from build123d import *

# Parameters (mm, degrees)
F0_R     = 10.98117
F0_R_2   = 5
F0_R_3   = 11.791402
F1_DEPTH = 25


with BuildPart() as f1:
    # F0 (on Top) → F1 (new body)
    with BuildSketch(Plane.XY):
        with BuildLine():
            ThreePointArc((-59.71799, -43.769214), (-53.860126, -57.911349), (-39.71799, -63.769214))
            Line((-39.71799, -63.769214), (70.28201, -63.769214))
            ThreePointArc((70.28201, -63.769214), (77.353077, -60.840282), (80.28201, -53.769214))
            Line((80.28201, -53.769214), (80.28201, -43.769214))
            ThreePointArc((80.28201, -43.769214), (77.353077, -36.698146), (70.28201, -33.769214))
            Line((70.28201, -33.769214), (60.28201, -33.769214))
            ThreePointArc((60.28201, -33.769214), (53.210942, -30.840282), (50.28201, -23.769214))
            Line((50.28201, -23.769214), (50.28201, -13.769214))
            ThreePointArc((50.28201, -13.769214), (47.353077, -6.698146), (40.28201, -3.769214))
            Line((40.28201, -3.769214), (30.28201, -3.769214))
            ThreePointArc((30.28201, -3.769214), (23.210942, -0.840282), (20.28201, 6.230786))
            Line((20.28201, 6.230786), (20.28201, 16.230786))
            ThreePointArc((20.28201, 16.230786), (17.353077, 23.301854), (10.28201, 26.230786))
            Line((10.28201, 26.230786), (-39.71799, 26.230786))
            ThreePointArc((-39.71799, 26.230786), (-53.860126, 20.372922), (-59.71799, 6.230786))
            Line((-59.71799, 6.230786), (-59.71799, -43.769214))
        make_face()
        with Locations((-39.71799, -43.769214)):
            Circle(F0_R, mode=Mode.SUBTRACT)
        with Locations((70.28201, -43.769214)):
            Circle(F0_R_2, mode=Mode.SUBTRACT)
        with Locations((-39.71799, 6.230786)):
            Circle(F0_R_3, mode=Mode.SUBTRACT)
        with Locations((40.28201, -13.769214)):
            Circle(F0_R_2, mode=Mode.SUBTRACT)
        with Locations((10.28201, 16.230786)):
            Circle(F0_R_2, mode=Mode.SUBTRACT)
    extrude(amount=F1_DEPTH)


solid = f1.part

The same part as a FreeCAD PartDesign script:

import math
import FreeCAD as App
import Part
import Sketcher

doc = App.newDocument("Part")
params = doc.addObject("Spreadsheet::Sheet", "Params")
for row, (alias, value) in enumerate([
    ("sketch1_diameter", "10 mm"),
    ("sketch1_radius", "20 mm"),
    ("sketch1_radius2", "10.000001 mm"),
    ("pad1_length", "25 mm"),
], start=1):
    params.set(f"A{row}", alias)
    params.set(f"B{row}", "=" + value)
    params.setAlias(f"B{row}", alias)

body = doc.addObject("PartDesign::Body", "Body")

# Sketch on XY plane
sketch1 = body.newObject("Sketcher::SketchObject", "Sketch")
sketch1.AttachmentSupport = (doc.getObject("XY_Plane"), [""])
sketch1.MapMode = "FlatFace"
sketch1.addGeometry([
    Part.ArcOfCircle(Part.Circle(App.Vector(-40, -44, 0), App.Vector(0, 0, 1), 20), math.radians(-180), math.radians(-90)),  # 0
    Part.LineSegment(App.Vector(-40, -64, 0), App.Vector(70, -64, 0)),  # 1
    Part.ArcOfCircle(Part.Circle(App.Vector(70, -54, 0), App.Vector(0, 0, 1), 10), math.radians(-90), math.radians(0)),  # 2
    Part.LineSegment(App.Vector(80, -54, 0), App.Vector(80, -44, 0)),  # 3
    Part.ArcOfCircle(Part.Circle(App.Vector(70, -44, 0), App.Vector(0, 0, 1), 10), math.radians(0), math.radians(90)),  # 4
    Part.LineSegment(App.Vector(70, -34, 0), App.Vector(60, -34, 0)),  # 5
    Part.ArcOfCircle(Part.Circle(App.Vector(60, -24, 0), App.Vector(0, 0, 1), 10), math.radians(180), math.radians(270)),  # 6
    Part.LineSegment(App.Vector(50, -24, 0), App.Vector(50, -14, 0)),  # 7
    Part.ArcOfCircle(Part.Circle(App.Vector(40, -14, 0), App.Vector(0, 0, 1), 10), math.radians(0), math.radians(90)),  # 8
    Part.LineSegment(App.Vector(40, -4, 0), App.Vector(30, -4, 0)),  # 9
    Part.ArcOfCircle(Part.Circle(App.Vector(30, 6, 0), App.Vector(0, 0, 1), 10), math.radians(180), math.radians(270)),  # 10
    Part.LineSegment(App.Vector(20, 6, 0), App.Vector(20, 16, 0)),  # 11
    Part.ArcOfCircle(Part.Circle(App.Vector(10, 16, 0), App.Vector(0, 0, 1), 10), math.radians(0), math.radians(90)),  # 12
    Part.LineSegment(App.Vector(10, 26, 0), App.Vector(-40, 26, 0)),  # 13
    Part.ArcOfCircle(Part.Circle(App.Vector(-40, 6, 0), App.Vector(0, 0, 1), 20), math.radians(90), math.radians(180)),  # 14
    Part.LineSegment(App.Vector(-60, 6, 0), App.Vector(-60, -44, 0)),  # 15
    Part.Circle(App.Vector(-40, -44, 0), App.Vector(0, 0, 1), 11),  # 16
    Part.Circle(App.Vector(70, -44, 0), App.Vector(0, 0, 1), 5),  # 17
    Part.Circle(App.Vector(-40, 6, 0), App.Vector(0, 0, 1), 12),  # 18
    Part.Circle(App.Vector(10, 16, 0), App.Vector(0, 0, 1), 5),  # 19
    Part.Circle(App.Vector(40, -14, 0), App.Vector(0, 0, 1), 5),  # 20
], False)
sketch1.addConstraint([
    Sketcher.Constraint("Tangent", 0, 2, 1, 1),
    Sketcher.Constraint("Tangent", 1, 2, 2, 1),
    Sketcher.Constraint("Tangent", 2, 2, 3, 1),
    Sketcher.Constraint("Tangent", 3, 2, 4, 1),
    Sketcher.Constraint("Tangent", 4, 2, 5, 1),
    Sketcher.Constraint("Tangent", 5, 2, 6, 2),
    Sketcher.Constraint("Tangent", 6, 1, 7, 1),
    Sketcher.Constraint("Tangent", 7, 2, 8, 1),
    Sketcher.Constraint("Tangent", 8, 2, 9, 1),
    Sketcher.Constraint("Tangent", 9, 2, 10, 2),
    Sketcher.Constraint("Tangent", 10, 1, 11, 1),
    Sketcher.Constraint("Tangent", 11, 2, 12, 1),
    Sketcher.Constraint("Tangent", 12, 2, 13, 1),
    Sketcher.Constraint("Tangent", 13, 2, 14, 1),
    Sketcher.Constraint("Tangent", 14, 2, 15, 1),
    Sketcher.Constraint("Tangent", 15, 2, 0, 1),
    Sketcher.Constraint("Horizontal", 1),
    Sketcher.Constraint("Vertical", 3),
    Sketcher.Constraint("Horizontal", 5),
    Sketcher.Constraint("Vertical", 7),
    Sketcher.Constraint("Horizontal", 9),
    Sketcher.Constraint("Vertical", 11),
    Sketcher.Constraint("Horizontal", 13),
    Sketcher.Constraint("Vertical", 15),
    Sketcher.Constraint("Coincident", 16, 3, 0, 3),
    Sketcher.Constraint("Coincident", 17, 3, 4, 3),
    Sketcher.Constraint("Coincident", 18, 3, 14, 3),
    Sketcher.Constraint("Coincident", 19, 3, 12, 3),
    Sketcher.Constraint("Coincident", 20, 3, 8, 3),
    Sketcher.Constraint("Equal", 2, 4),
    Sketcher.Constraint("Equal", 4, 6),
    Sketcher.Constraint("Equal", 6, 8),
    Sketcher.Constraint("Equal", 8, 10),
    Sketcher.Constraint("Equal", 10, 12),
    Sketcher.Constraint("Equal", 0, 14),
    Sketcher.Constraint("Equal", 17, 19),
    Sketcher.Constraint("Equal", 19, 20),
    Sketcher.Constraint("Horizontal", 0, 3, 4, 3),
    Sketcher.Constraint("Horizontal", 10, 3, 14, 3),
    Sketcher.Constraint("Equal", 5, 9),
    Sketcher.Constraint("Equal", 9, 3),
    Sketcher.Constraint("Equal", 3, 7),
    Sketcher.Constraint("Equal", 13, 15),
    Sketcher.Constraint("Diameter", 17, 10.0),
    Sketcher.Constraint("Radius", 0, 20.0),
    Sketcher.Constraint("Radius", 2, 10.000001),
    Sketcher.Constraint("Diameter", 16, 21.96234),
    Sketcher.Constraint("Diameter", 18, 23.582804),
    Sketcher.Constraint("DistanceX", 0, 3, -1, 1, 39.71799),
    Sketcher.Constraint("DistanceY", 0, 3, -1, 1, 43.769214),
])
sketch1.setExpression("Constraints[43]", "Params.sketch1_diameter")
sketch1.setExpression("Constraints[44]", "Params.sketch1_radius")
sketch1.setExpression("Constraints[45]", "Params.sketch1_radius2")
pad1 = body.newObject("PartDesign::Pad", "Pad")
pad1.Profile = sketch1
pad1.setExpression("Length", "Params.pad1_length")

doc.recompute()
